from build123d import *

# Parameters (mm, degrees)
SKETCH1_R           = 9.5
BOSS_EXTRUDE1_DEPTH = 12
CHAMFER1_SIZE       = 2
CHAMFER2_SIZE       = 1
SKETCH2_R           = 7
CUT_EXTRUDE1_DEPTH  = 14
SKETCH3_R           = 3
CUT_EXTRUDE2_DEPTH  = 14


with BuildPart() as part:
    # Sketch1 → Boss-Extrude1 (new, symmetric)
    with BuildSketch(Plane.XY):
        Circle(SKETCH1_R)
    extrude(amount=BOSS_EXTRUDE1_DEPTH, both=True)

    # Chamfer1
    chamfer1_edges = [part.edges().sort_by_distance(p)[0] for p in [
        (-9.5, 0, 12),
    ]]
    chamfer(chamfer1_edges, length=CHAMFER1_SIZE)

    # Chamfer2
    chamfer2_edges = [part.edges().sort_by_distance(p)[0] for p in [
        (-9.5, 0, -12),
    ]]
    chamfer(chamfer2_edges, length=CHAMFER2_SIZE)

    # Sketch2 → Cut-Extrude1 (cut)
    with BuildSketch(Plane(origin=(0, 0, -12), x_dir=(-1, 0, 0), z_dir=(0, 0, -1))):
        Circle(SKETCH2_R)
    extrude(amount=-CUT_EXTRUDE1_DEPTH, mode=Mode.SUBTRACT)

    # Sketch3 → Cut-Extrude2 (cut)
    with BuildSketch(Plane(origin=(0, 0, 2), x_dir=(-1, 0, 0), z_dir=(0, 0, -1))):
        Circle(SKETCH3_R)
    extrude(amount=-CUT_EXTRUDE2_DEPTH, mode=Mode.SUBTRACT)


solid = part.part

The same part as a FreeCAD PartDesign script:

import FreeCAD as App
import Part
import Sketcher

V = App.Vector


def edges_at(feature, points):
    """Names of the edges that pass closest to the given points."""
    edges = feature.Shape.Edges
    near = lambda p: min(range(len(edges)), key=lambda i: edges[i].distToShape(Part.Vertex(*p))[0])
    return sorted({f"Edge{near(p) + 1}" for p in points})

doc = App.newDocument("Part")
params = doc.addObject("Spreadsheet::Sheet", "Params")
for row, (alias, value) in enumerate([
    ("sketch1_diameter", "19 mm"),
    ("pad1_length", "24 mm"),
    ("chamfer_size", "2 mm"),
    ("chamfer2_size", "1 mm"),
    ("sketch2_diameter", "14 mm"),
    ("pocket1_length", "14 mm"),
    ("sketch3_diameter", "6 mm"),
    ("pocket2_length", "14 mm"),
], start=1):
    params.set(f"A{row}", alias)
    params.set(f"B{row}", "=" + value)
    params.setAlias(f"B{row}", alias)

body = doc.addObject("PartDesign::Body", "Body")

# Sketch on XY plane
sketch1 = doc.addObject("Sketcher::SketchObject", "Sketch")
body.addObject(sketch1)
sketch1.AttachmentSupport = (doc.XY_Plane, [""])
sketch1.MapMode = "FlatFace"
sketch1.addGeometry(Part.Circle(V(0, 0, 0), V(0, 0, 1), 9.5), False)
sketch1.addConstraint([
    Sketcher.Constraint("Coincident", 0, 3, -1, 1),
    Sketcher.Constraint("Diameter", 0, 19.0),
])
sketch1.setExpression("Constraints[1]", "Params.sketch1_diameter")
pad1 = doc.addObject("PartDesign::Pad", "Pad")
body.addObject(pad1)
pad1.Profile = sketch1
pad1.setExpression("Length", "Params.pad1_length")
pad1.Midplane = True
doc.recompute()

chamfer = doc.addObject("PartDesign::Chamfer", "Chamfer")
body.addObject(chamfer)
chamfer.Base = (pad1, edges_at(pad1, [(-9.5, 0, 12)]))
chamfer.setExpression("Size", "Params.chamfer_size")
doc.recompute()

chamfer2 = doc.addObject("PartDesign::Chamfer", "Chamfer001")
body.addObject(chamfer2)
chamfer2.Base = (chamfer, edges_at(chamfer, [(-9.5, 0, -12)]))
chamfer2.setExpression("Size", "Params.chamfer2_size")

# Sketch on XY plane
sketch2 = doc.addObject("Sketcher::SketchObject", "Sketch001")
body.addObject(sketch2)
sketch2.AttachmentSupport = (doc.XY_Plane, [""])
sketch2.MapMode = "FlatFace"
sketch2.AttachmentOffset = App.Placement(V(0, 0, -12), App.Rotation())
sketch2.addGeometry(Part.Circle(V(0, 0, 0), V(0, 0, 1), 7), False)
sketch2.addConstraint([
    Sketcher.Constraint("Coincident", 0, 3, -1, 1),
    Sketcher.Constraint("Diameter", 0, 14.0),
])
sketch2.setExpression("Constraints[1]", "Params.sketch2_diameter")
pocket1 = doc.addObject("PartDesign::Pocket", "Pocket")
body.addObject(pocket1)
pocket1.Profile = sketch2
pocket1.setExpression("Length", "Params.pocket1_length")
pocket1.Reversed = True

# Sketch on XY plane
sketch3 = doc.addObject("Sketcher::SketchObject", "Sketch002")
body.addObject(sketch3)
sketch3.AttachmentSupport = (doc.XY_Plane, [""])
sketch3.MapMode = "FlatFace"
sketch3.AttachmentOffset = App.Placement(V(0, 0, 2), App.Rotation())
sketch3.addGeometry(Part.Circle(V(0, 0, 0), V(0, 0, 1), 3), False)
sketch3.addConstraint([
    Sketcher.Constraint("Coincident", 0, 3, -1, 1),
    Sketcher.Constraint("Diameter", 0, 6.0),
])
sketch3.setExpression("Constraints[1]", "Params.sketch3_diameter")
pocket2 = doc.addObject("PartDesign::Pocket", "Pocket001")
body.addObject(pocket2)
pocket2.Profile = sketch3
pocket2.setExpression("Length", "Params.pocket2_length")
pocket2.Reversed = True

doc.recompute()
